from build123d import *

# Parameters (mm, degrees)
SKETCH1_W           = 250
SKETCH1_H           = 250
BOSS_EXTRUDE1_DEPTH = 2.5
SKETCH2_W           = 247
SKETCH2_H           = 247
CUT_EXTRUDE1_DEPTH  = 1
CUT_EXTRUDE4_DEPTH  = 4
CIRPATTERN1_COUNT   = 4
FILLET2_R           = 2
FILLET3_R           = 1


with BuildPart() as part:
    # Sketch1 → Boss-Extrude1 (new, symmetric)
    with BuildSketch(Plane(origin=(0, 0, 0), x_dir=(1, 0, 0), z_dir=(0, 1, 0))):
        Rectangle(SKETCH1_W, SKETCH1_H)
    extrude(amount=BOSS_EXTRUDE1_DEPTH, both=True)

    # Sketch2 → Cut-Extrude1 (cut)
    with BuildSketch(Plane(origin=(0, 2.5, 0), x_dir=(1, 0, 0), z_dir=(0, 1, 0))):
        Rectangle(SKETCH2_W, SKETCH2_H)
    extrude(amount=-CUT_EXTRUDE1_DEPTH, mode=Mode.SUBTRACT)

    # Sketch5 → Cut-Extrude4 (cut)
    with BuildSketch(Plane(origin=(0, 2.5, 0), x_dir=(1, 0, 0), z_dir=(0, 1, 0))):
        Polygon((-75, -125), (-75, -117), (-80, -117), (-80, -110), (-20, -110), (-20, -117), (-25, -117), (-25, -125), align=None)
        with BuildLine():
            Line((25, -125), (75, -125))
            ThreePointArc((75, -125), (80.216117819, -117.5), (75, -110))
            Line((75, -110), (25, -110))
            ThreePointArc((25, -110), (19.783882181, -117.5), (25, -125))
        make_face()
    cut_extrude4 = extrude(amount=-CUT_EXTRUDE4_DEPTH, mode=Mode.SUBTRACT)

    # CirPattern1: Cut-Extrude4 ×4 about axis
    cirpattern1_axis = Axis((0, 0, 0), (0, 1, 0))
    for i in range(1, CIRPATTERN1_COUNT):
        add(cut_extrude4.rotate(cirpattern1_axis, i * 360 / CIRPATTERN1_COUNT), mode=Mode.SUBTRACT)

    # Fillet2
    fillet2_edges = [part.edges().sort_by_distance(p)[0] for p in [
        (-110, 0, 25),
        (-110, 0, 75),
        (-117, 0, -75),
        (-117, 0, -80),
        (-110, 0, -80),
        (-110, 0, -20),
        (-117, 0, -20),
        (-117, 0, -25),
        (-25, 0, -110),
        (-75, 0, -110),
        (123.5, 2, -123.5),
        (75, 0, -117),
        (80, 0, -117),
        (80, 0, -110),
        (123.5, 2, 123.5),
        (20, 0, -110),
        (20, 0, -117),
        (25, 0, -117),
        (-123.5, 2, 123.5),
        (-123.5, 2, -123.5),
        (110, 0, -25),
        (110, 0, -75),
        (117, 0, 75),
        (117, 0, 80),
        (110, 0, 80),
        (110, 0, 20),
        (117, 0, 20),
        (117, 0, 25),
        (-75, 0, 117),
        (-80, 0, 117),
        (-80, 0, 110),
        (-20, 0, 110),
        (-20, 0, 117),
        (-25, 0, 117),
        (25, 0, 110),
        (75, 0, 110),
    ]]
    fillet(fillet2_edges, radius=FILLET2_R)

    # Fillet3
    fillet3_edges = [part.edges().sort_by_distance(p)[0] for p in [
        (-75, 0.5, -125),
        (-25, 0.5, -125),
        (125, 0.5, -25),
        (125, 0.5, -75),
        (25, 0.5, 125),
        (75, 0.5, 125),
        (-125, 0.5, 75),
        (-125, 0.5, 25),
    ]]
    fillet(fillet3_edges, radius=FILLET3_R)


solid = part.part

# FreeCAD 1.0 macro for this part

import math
import FreeCAD as App
import Part
import Sketcher

V = App.Vector


def edges_at(feature, points):
    """Names of the edges that pass closest to the given points."""
    edges = feature.Shape.Edges
    near = lambda p: min(range(len(edges)), key=lambda i: edges[i].distToShape(Part.Vertex(*p))[0])
    return sorted({f"Edge{near(p) + 1}" for p in points})


def add_polygon(sketch, points):
    """Adds a closed chain of lines whose ends are joined by coincident constraints."""
    first, n = sketch.GeometryCount, len(points)
    for a, b in zip(points, points[1:] + points[:1]):
        sketch.addGeometry(Part.LineSegment(App.Vector(*a, 0), App.Vector(*b, 0)), False)
    for i in range(n):
        sketch.addConstraint(Sketcher.Constraint("Coincident", first + i, 2, first + (i + 1) % n, 1))

doc = App.newDocument("Part")
params = doc.addObject("Spreadsheet::Sheet", "Params")
for row, (alias, value) in enumerate([
    ("sketch1_width", "250 mm"),
    ("pad1_length", "5 mm"),
    ("sketch2_width", "247 mm"),
    ("pocket1_length", "1 mm"),
    ("sketch3_radius", "8 mm"),
    ("sketch3_width", "50 mm"),
    ("sketch3_width2", "5 mm"),
    ("sketch3_height", "8 mm"),
    ("sketch3_height2", "7 mm"),
    ("pocket2_length", "4 mm"),
    ("fillet_radius", "2 mm"),
    ("fillet2_radius", "1 mm"),
], start=1):
    params.set(f"A{row}", alias)
    params.set(f"B{row}", "=" + value)
    params.setAlias(f"B{row}", alias)

body = doc.addObject("PartDesign::Body", "Body")

# Sketch on XZ plane
sketch1 = body.newObject("Sketcher::SketchObject", "Sketch")
sketch1.AttachmentSupport = (doc.getObject("XZ_Plane"), [""])
sketch1.MapMode = "FlatFace"
add_polygon(sketch1, [(-125, -125), (-125, 125), (125, 125), (125, -125)])  # lines 0-3
sketch1.addConstraint([
    Sketcher.Constraint("Vertical", 0),
    Sketcher.Constraint("Horizontal", 1),
    Sketcher.Constraint("Vertical", 2),
    Sketcher.Constraint("Horizontal", 3),
    Sketcher.Constraint("Symmetric", 0, 2, 2, 2, -1, 1),
    Sketcher.Constraint("Equal", 3, 0),
    Sketcher.Constraint("DistanceX", 1, 1, 1, 2, 250.0),
])
sketch1.setExpression("Constraints[10]", "Params.sketch1_width")
pad1 = body.newObject("PartDesign::Pad", "Pad")
pad1.Profile = sketch1
pad1.setExpression("Length", "Params.pad1_length")
pad1.Midplane = True

# Sketch on XZ plane
sketch2 = body.newObject("Sketcher::SketchObject", "Sketch001")
sketch2.AttachmentSupport = (doc.getObject("XZ_Plane"), [""])
sketch2.MapMode = "FlatFace"
sketch2.AttachmentOffset = App.Placement(V(0, 0, -2.5), App.Rotation())
add_polygon(sketch2, [(-123.5, -123.5), (-123.5, 123.5), (123.5, 123.5), (123.5, -123.5)])  # lines 0-3
sketch2.addConstraint([
    Sketcher.Constraint("Vertical", 0),
    Sketcher.Constraint("Horizontal", 1),
    Sketcher.Constraint("Vertical", 2),
    Sketcher.Constraint("Horizontal", 3),
    Sketcher.Constraint("Symmetric", 0, 2, 2, 2, -1, 1),
    Sketcher.Constraint("Equal", 3, 0),
    Sketcher.Constraint("DistanceX", 1, 1, 1, 2, 247.0),
])
sketch2.setExpression("Constraints[10]", "Params.sketch2_width")
pocket1 = body.newObject("PartDesign::Pocket", "Pocket")
pocket1.Profile = sketch2
pocket1.setExpression("Length", "Params.pocket1_length")
pocket1.Reversed = True

# Sketch on XZ plane
sketch3 = body.newObject("Sketcher::SketchObject", "Sketch002")
sketch3.AttachmentSupport = (doc.getObject("XZ_Plane"), [""])
sketch3.MapMode = "FlatFace"
sketch3.AttachmentOffset = App.Placement(V(0, 0, -2.5), App.Rotation())
add_polygon(sketch3, [(-75, 117), (-75, 125), (-25, 125), (-25, 117), (-20, 117), (-20, 110), (-80, 110), (-80, 117)])  # lines 0-7
sketch3.addGeometry(Part.LineSegment(V(25, 125, 0), V(75, 125, 0)), False)  # 8
sketch3.addGeometry(Part.ArcOfCircle(Part.Circle(V(72.216118, 117.5, 0), V(0, 0, 1), 8), math.radians(-69.635865), math.radians(69.635865)), False)  # 9
sketch3.addGeometry(Part.LineSegment(V(75, 110, 0), V(25, 110, 0)), False)  # 10
sketch3.addGeometry(Part.ArcOfCircle(Part.Circle(V(27.783882, 117.5, 0), V(0, 0, 1), 8), math.radians(110.364135), math.radians(249.635865)), False)  # 11
sketch3.addConstraint([
    Sketcher.Constraint("Coincident", 8, 2, 9, 2),
    Sketcher.Constraint("Coincident", 9, 1, 10, 1),
    Sketcher.Constraint("Coincident", 10, 2, 11, 2),
    Sketcher.Constraint("Coincident", 11, 1, 8, 1),
    Sketcher.Constraint("Vertical", 0),
    Sketcher.Constraint("Horizontal", 1),
    Sketcher.Constraint("Vertical", 2),
    Sketcher.Constraint("Horizontal", 3),
    Sketcher.Constraint("Vertical", 4),
    Sketcher.Constraint("Horizontal", 5),
    Sketcher.Constraint("Vertical", 6),
    Sketcher.Constraint("Horizontal", 7),
    Sketcher.Constraint("Horizontal", 8),
    Sketcher.Constraint("Horizontal", 10),
    Sketcher.Constraint("Equal", 9, 11),
    Sketcher.Constraint("Symmetric", 0, 2, 8, 2, -2),
    Sketcher.Constraint("Horizontal", 9, 3, 11, 3),
    Sketcher.Constraint("Horizontal", 3, 2, 6, 2),
    Sketcher.Constraint("Horizontal", 5, 2, 9, 1),
    Sketcher.Constraint("Vertical", 8, 2, 9, 1),
    Sketcher.Constraint("Equal", 3, 7),
    Sketcher.Constraint("Equal", 1, 8),
    Sketcher.Constraint("Radius", 9, 8.0),
    Sketcher.Constraint("DistanceX", 1, 1, 1, 2, 50.0),
    Sketcher.Constraint("DistanceX", 3, 1, 3, 2, 5.0),
    Sketcher.Constraint("DistanceY", 0, 1, 0, 2, 8.0),
    Sketcher.Constraint("DistanceY", 4, 2, 4, 1, 7.0),
    Sketcher.Constraint("DistanceX", 0, 2, -1, 1, 75.0),
    Sketcher.Constraint("DistanceY", -1, 1, 0, 2, 125.0),
])
sketch3.setExpression("Constraints[30]", "Params.sketch3_radius")
sketch3.setExpression("Constraints[31]", "Params.sketch3_width")
sketch3.setExpression("Constraints[32]", "Params.sketch3_width2")
sketch3.setExpression("Constraints[33]", "Params.sketch3_height")
sketch3.setExpression("Constraints[34]", "Params.sketch3_height2")
pocket2 = body.newObject("PartDesign::Pocket", "Pocket001")
pocket2.Profile = sketch3
pocket2.setExpression("Length", "Params.pocket2_length")
pocket2.Reversed = True
doc.recompute()

polarpattern = body.newObject("PartDesign::PolarPattern", "PolarPattern")
polarpattern.Originals = [pocket2]
polarpattern.Axis = (doc.getObject("Y_Axis"), [""])
polarpattern.Angle = 360
polarpattern.Occurrences = 4
body.Tip = polarpattern
doc.recompute()

fillet = body.newObject("PartDesign::Fillet", "Fillet")
fillet.Base = (polarpattern, edges_at(polarpattern, [
    (-110, 0, 25),
    (-110, 0, 75),
    (-117, 0, -75),
    (-117, 0, -80),
    (-110, 0, -80),
    (-110, 0, -20),
    (-117, 0, -20),
    (-117, 0, -25),
    (-25, 0, -110),
    (-75, 0, -110),
    (123.5, 2, -123.5),
    (75, 0, -117),
    (80, 0, -117),
    (80, 0, -110),
    (123.5, 2, 123.5),
    (20, 0, -110),
    (20, 0, -117),
    (25, 0, -117),
    (-123.5, 2, 123.5),
    (-123.5, 2, -123.5),
    (110, 0, -25),
    (110, 0, -75),
    (117, 0, 75),
    (117, 0, 80),
    (110, 0, 80),
    (110, 0, 20),
    (117, 0, 20),
    (117, 0, 25),
    (-75, 0, 117),
    (-80, 0, 117),
    (-80, 0, 110),
    (-20, 0, 110),
    (-20, 0, 117),
    (-25, 0, 117),
    (25, 0, 110),
    (75, 0, 110),
]))
fillet.setExpression("Radius", "Params.fillet_radius")
doc.recompute()

fillet2 = body.newObject("PartDesign::Fillet", "Fillet001")
fillet2.Base = (fillet, edges_at(fillet, [
    (-75, 0.5, -125),
    (-25, 0.5, -125),
    (125, 0.5, -25),
    (125, 0.5, -75),
    (25, 0.5, 125),
    (75, 0.5, 125),
    (-125, 0.5, 75),
    (-125, 0.5, 25),
]))
fillet2.setExpression("Radius", "Params.fillet2_radius")

doc.recompute()
